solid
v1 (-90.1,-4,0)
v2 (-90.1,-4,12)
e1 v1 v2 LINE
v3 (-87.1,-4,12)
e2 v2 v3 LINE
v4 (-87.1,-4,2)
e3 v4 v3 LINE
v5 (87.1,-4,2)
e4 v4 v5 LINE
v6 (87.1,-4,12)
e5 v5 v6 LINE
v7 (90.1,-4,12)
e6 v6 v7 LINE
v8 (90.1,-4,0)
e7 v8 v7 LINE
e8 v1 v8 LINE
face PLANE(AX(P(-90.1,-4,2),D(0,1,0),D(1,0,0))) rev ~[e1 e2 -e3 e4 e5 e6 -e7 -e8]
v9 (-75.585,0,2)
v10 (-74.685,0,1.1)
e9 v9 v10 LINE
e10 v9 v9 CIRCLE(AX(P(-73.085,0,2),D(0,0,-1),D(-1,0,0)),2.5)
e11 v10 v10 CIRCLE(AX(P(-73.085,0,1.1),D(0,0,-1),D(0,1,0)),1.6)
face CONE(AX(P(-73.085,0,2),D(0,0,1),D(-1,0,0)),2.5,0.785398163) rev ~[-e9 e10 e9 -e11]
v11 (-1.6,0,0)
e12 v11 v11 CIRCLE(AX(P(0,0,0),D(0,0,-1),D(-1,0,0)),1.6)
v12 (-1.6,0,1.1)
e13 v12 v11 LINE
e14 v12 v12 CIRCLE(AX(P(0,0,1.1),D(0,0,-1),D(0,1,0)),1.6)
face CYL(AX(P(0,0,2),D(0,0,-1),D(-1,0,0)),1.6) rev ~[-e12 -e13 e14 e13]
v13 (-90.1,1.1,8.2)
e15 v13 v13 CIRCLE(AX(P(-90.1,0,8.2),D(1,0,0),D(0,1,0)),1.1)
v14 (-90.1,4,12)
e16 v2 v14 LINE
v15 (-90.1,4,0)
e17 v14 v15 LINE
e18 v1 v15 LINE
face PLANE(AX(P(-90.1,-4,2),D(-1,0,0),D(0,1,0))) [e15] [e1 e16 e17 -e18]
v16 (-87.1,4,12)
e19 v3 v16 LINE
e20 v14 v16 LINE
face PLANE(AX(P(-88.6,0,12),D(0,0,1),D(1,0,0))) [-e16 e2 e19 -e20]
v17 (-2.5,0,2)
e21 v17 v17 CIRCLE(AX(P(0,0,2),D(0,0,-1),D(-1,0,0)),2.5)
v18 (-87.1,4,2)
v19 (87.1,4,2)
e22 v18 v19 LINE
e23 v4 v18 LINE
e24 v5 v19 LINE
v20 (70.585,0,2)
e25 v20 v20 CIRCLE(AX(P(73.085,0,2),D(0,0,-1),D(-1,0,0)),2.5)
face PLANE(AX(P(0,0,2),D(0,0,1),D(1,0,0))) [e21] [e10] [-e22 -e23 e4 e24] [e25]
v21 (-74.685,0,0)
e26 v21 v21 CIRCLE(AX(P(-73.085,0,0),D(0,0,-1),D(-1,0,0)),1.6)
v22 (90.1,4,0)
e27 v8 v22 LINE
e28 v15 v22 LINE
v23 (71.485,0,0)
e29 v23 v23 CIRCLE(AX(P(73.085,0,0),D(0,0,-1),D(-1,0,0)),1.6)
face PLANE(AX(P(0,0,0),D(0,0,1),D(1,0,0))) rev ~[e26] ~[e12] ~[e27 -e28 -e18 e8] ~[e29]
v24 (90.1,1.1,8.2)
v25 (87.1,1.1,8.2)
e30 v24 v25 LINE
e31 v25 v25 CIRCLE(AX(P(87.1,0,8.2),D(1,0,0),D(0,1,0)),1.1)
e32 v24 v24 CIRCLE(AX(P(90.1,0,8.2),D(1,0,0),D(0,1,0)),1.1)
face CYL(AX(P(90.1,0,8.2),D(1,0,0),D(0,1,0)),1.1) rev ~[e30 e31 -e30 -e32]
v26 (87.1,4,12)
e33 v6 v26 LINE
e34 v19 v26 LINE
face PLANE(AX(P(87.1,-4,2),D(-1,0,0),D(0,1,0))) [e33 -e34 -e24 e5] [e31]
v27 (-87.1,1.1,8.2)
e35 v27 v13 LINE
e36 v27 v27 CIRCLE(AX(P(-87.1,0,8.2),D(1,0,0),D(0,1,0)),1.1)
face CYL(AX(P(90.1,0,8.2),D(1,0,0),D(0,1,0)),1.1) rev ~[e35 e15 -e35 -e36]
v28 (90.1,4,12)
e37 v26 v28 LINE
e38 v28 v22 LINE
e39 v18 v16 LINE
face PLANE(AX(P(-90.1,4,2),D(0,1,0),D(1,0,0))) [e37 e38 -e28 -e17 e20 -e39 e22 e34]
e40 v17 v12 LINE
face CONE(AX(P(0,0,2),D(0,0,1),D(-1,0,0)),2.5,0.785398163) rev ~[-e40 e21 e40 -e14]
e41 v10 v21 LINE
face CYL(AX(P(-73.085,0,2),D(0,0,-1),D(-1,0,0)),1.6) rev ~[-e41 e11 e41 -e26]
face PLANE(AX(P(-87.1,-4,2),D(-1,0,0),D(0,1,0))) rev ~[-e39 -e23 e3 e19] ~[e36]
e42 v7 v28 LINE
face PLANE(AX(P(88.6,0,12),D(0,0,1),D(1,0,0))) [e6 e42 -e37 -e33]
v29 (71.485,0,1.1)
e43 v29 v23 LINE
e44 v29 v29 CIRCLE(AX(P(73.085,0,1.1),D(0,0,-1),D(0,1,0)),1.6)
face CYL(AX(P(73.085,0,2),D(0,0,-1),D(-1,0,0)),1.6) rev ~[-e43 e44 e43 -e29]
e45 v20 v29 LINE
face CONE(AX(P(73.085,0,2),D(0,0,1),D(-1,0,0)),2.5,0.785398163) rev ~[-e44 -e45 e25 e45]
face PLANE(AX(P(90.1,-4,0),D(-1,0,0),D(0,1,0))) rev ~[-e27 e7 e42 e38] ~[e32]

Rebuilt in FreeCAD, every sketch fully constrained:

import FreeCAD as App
import Part
import Sketcher

V = App.Vector
Q = App.Units.Quantity

doc = App.newDocument("Part")
params = doc.addObject("Spreadsheet::Sheet", "Params")
for row, (alias, value) in enumerate([
    ("sketch1_height", "8 mm"),
    ("sketch1_width", "180.2 mm"),
    ("pad1_length", "2 mm"),
    ("sketch2_width", "3 mm"),
    ("sketch2_height", "8 mm"),
    ("pad2_length", "10 mm"),
    ("sketch3_diameter", "2.2 mm"),
    ("sketch4_diameter", "3.2 mm"),
    ("hole_diameter", "3.2 mm"),
    ("hole_csink_diameter", "5 mm"),
], start=1):
    params.set(f"A{row}", alias)
    params.set(f"B{row}", "=" + value)
    params.setAlias(f"B{row}", alias)

body = doc.addObject("PartDesign::Body", "Body")

# Sketch on XY plane
sketch1 = body.newObject("Sketcher::SketchObject", "Sketch")
sketch1.AttachmentSupport = (doc.getObject("XY_Plane"), [""])
sketch1.MapMode = "FlatFace"
sketch1.addGeometry([
    Part.LineSegment(V(-90.1, 4, 0), V(-90.1, -4, 0)),
    Part.LineSegment(V(-90.1, -4, 0), V(90.1, -4, 0)),
    Part.LineSegment(V(90.1, -4, 0), V(90.1, 4, 0)),
    Part.LineSegment(V(90.1, 4, 0), V(-90.1, 4, 0)),
], False)
sketch1.addConstraint([
    Sketcher.Constraint("Coincident", 0, 2, 1, 1),
    Sketcher.Constraint("Coincident", 1, 2, 2, 1),
    Sketcher.Constraint("Coincident", 2, 2, 3, 1),
    Sketcher.Constraint("Coincident", 3, 2, 0, 1),
    Sketcher.Constraint("Vertical", 0),
    Sketcher.Constraint("Horizontal", 1),
    Sketcher.Constraint("Vertical", 2),
    Sketcher.Constraint("Horizontal", 3),
    Sketcher.Constraint("Symmetric", 0, 2, 2, 2, -1, 1),
    Sketcher.Constraint("DistanceY", 0, 2, 0, 1, Q("8 mm")),
    Sketcher.Constraint("DistanceX", 1, 1, 1, 2, Q("180.2 mm")),
])
sketch1.setExpression("Constraints[9]", "Params.sketch1_height")
sketch1.setExpression("Constraints[10]", "Params.sketch1_width")
pad1 = body.newObject("PartDesign::Pad", "Pad")
pad1.Profile = sketch1
pad1.setExpression("Length", "Params.pad1_length")

# Sketch on XY plane
sketch2 = body.newObject("Sketcher::SketchObject", "Sketch001")
sketch2.AttachmentSupport = (doc.getObject("XY_Plane"), [""])
sketch2.MapMode = "FlatFace"
sketch2.AttachmentOffset = App.Placement(V(0, 0, 2), App.Rotation())
sketch2.addGeometry([
    Part.LineSegment(V(-90.1, 4, 0), V(-90.1, -4, 0)),  # 0
    Part.LineSegment(V(-90.1, -4, 0), V(-87.1, -4, 0)),  # 1
    Part.LineSegment(V(-87.1, -4, 0), V(-87.1, 4, 0)),  # 2
    Part.LineSegment(V(-87.1, 4, 0), V(-90.1, 4, 0)),  # 3
    Part.LineSegment(V(87.1, 4, 0), V(87.1, -4, 0)),  # 4
    Part.LineSegment(V(87.1, -4, 0), V(90.1, -4, 0)),  # 5
    Part.LineSegment(V(90.1, -4, 0), V(90.1, 4, 0)),  # 6
    Part.LineSegment(V(90.1, 4, 0), V(87.1, 4, 0)),  # 7
], False)
sketch2.addConstraint([
    Sketcher.Constraint("Coincident", 0, 2, 1, 1),
    Sketcher.Constraint("Coincident", 1, 2, 2, 1),
    Sketcher.Constraint("Coincident", 2, 2, 3, 1),
    Sketcher.Constraint("Coincident", 3, 2, 0, 1),
    Sketcher.Constraint("Coincident", 4, 2, 5, 1),
    Sketcher.Constraint("Coincident", 5, 2, 6, 1),
    Sketcher.Constraint("Coincident", 6, 2, 7, 1),
    Sketcher.Constraint("Coincident", 7, 2, 4, 1),
    Sketcher.Constraint("Vertical", 0),
    Sketcher.Constraint("Horizontal", 1),
    Sketcher.Constraint("Vertical", 2),
    Sketcher.Constraint("Horizontal", 3),
    Sketcher.Constraint("Vertical", 4),
    Sketcher.Constraint("Horizontal", 5),
    Sketcher.Constraint("Vertical", 6),
    Sketcher.Constraint("Horizontal", 7),
    Sketcher.Constraint("Symmetric", 2, 2, 4, 2, -1, 1),
    Sketcher.Constraint("Symmetric", 0, 2, 6, 2, -1, 1),
    Sketcher.Constraint("Horizontal", 1, 2, 4, 2),
    Sketcher.Constraint("DistanceX", 1, 1, 1, 2, Q("3 mm")),
    Sketcher.Constraint("DistanceY", 0, 2, 0, 1, Q("8 mm")),
    Sketcher.Constraint("DistanceX", 0, 2, -1, 1, Q("90.1 mm")),
])
sketch2.setExpression("Constraints[19]", "Params.sketch2_width")
sketch2.setExpression("Constraints[20]", "Params.sketch2_height")
pad2 = body.newObject("PartDesign::Pad", "Pad001")
pad2.Profile = sketch2
pad2.setExpression("Length", "Params.pad2_length")

# Sketch on YZ plane
sketch3 = body.newObject("Sketcher::SketchObject", "Sketch002")
sketch3.AttachmentSupport = (doc.getObject("YZ_Plane"), [""])
sketch3.MapMode = "FlatFace"
sketch3.AttachmentOffset = App.Placement(V(0, 0, 90.1), App.Rotation())
sketch3.addGeometry(Part.Circle(V(0, 8.2, 0), V(0, 0, 1), 1.1), False)
sketch3.addConstraint([
    Sketcher.Constraint("PointOnObject", 0, 3, -2),
    Sketcher.Constraint("Diameter", 0, Q("2.2 mm")),
    Sketcher.Constraint("DistanceY", -1, 1, 0, 3, Q("8.2 mm")),
])
sketch3.setExpression("Constraints[1]", "Params.sketch3_diameter")
pocket1 = body.newObject("PartDesign::Pocket", "Pocket")
pocket1.Profile = sketch3
pocket1.Type = "ThroughAll"

# Sketch on XY plane
sketch4 = body.newObject("Sketcher::SketchObject", "Sketch003")
sketch4.AttachmentSupport = (doc.getObject("XY_Plane"), [""])
sketch4.MapMode = "FlatFace"
sketch4.AttachmentOffset = App.Placement(V(0, 0, 2), App.Rotation())
sketch4.addGeometry([
    Part.Circle(V(-73.085, 0, 0), V(0, 0, 1), 1.6),
    Part.Circle(V(0, 0, 0), V(0, 0, 1), 1.6),
    Part.Circle(V(73.085, 0, 0), V(0, 0, 1), 1.6),
], False)
sketch4.addConstraint([
    Sketcher.Constraint("Coincident", 1, 3, -1, 1),
    Sketcher.Constraint("Equal", 0, 1),
    Sketcher.Constraint("Equal", 1, 2),
    Sketcher.Constraint("Symmetric", 0, 3, 2, 3, -1, 1),
    Sketcher.Constraint("PointOnObject", 0, 3, -1),
    Sketcher.Constraint("Diameter", 0, Q("3.2 mm")),
    Sketcher.Constraint("DistanceX", 0, 3, 2, 3, Q("146.17 mm")),
])
sketch4.setExpression("Constraints[5]", "Params.sketch4_diameter")
doc.recompute()
hole = body.newObject("PartDesign::Hole", "Hole")
hole.Profile = sketch4
hole.ThreadType = "None"
hole.setExpression("Diameter", "Params.hole_diameter")
hole.DepthType = "ThroughAll"
hole.HoleCutType = "Countersink"
hole.setExpression("HoleCutDiameter", "Params.hole_csink_diameter")
hole.HoleCutCountersinkAngle = 90

doc.recompute()
